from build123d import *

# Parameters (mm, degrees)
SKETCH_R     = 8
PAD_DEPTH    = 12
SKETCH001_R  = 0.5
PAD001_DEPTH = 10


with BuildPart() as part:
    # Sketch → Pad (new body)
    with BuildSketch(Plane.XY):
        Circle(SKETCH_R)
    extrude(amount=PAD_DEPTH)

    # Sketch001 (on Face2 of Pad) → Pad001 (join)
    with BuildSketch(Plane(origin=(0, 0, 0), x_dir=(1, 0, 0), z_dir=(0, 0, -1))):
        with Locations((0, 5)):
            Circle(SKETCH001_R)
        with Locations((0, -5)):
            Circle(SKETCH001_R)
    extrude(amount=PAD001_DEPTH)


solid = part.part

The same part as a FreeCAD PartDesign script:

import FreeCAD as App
import Part
import Sketcher

V = App.Vector
Q = App.Units.Quantity

doc = App.newDocument("Part")
body = doc.addObject("PartDesign::Body", "Body")

# Sketch on XY plane
sketch1 = doc.addObject("Sketcher::SketchObject", "Sketch")
body.addObject(sketch1)
sketch1.AttachmentSupport = (doc.XY_Plane, [""])
sketch1.MapMode = "FlatFace"
sketch1.addGeometry(Part.Circle(V(0, 0, 0), V(0, 0, 1), 8), False)
sketch1.addConstraint([
    Sketcher.Constraint("Coincident", 0, 3, -1, 1),
    Sketcher.Constraint("Diameter", 0, Q("16 mm")),
])
pad1 = doc.addObject("PartDesign::Pad", "Pad")
body.addObject(pad1)
pad1.Profile = sketch1
pad1.Length = 12

# Sketch on XY plane
sketch2 = doc.addObject("Sketcher::SketchObject", "Sketch001")
body.addObject(sketch2)
sketch2.AttachmentSupport = (doc.XY_Plane, [""])
sketch2.MapMode = "FlatFace"
sketch2.addGeometry([
    Part.Circle(V(0, -5, 0), V(0, 0, 1), 0.5),
    Part.Circle(V(0, 5, 0), V(0, 0, 1), 0.5),
], False)
sketch2.addConstraint([
    Sketcher.Constraint("Equal", 0, 1),
    Sketcher.Constraint("Symmetric", 0, 3, 1, 3, -1, 1),
    Sketcher.Constraint("PointOnObject", 0, 3, -2),
    Sketcher.Constraint("Diameter", 0, Q("1 mm")),
    Sketcher.Constraint("DistanceY", 0, 3, -1, 1, Q("5 mm")),
])
pad2 = doc.addObject("PartDesign::Pad", "Pad001")
body.addObject(pad2)
pad2.Profile = sketch2
pad2.Length = 10
pad2.Reversed = True

doc.recompute()
